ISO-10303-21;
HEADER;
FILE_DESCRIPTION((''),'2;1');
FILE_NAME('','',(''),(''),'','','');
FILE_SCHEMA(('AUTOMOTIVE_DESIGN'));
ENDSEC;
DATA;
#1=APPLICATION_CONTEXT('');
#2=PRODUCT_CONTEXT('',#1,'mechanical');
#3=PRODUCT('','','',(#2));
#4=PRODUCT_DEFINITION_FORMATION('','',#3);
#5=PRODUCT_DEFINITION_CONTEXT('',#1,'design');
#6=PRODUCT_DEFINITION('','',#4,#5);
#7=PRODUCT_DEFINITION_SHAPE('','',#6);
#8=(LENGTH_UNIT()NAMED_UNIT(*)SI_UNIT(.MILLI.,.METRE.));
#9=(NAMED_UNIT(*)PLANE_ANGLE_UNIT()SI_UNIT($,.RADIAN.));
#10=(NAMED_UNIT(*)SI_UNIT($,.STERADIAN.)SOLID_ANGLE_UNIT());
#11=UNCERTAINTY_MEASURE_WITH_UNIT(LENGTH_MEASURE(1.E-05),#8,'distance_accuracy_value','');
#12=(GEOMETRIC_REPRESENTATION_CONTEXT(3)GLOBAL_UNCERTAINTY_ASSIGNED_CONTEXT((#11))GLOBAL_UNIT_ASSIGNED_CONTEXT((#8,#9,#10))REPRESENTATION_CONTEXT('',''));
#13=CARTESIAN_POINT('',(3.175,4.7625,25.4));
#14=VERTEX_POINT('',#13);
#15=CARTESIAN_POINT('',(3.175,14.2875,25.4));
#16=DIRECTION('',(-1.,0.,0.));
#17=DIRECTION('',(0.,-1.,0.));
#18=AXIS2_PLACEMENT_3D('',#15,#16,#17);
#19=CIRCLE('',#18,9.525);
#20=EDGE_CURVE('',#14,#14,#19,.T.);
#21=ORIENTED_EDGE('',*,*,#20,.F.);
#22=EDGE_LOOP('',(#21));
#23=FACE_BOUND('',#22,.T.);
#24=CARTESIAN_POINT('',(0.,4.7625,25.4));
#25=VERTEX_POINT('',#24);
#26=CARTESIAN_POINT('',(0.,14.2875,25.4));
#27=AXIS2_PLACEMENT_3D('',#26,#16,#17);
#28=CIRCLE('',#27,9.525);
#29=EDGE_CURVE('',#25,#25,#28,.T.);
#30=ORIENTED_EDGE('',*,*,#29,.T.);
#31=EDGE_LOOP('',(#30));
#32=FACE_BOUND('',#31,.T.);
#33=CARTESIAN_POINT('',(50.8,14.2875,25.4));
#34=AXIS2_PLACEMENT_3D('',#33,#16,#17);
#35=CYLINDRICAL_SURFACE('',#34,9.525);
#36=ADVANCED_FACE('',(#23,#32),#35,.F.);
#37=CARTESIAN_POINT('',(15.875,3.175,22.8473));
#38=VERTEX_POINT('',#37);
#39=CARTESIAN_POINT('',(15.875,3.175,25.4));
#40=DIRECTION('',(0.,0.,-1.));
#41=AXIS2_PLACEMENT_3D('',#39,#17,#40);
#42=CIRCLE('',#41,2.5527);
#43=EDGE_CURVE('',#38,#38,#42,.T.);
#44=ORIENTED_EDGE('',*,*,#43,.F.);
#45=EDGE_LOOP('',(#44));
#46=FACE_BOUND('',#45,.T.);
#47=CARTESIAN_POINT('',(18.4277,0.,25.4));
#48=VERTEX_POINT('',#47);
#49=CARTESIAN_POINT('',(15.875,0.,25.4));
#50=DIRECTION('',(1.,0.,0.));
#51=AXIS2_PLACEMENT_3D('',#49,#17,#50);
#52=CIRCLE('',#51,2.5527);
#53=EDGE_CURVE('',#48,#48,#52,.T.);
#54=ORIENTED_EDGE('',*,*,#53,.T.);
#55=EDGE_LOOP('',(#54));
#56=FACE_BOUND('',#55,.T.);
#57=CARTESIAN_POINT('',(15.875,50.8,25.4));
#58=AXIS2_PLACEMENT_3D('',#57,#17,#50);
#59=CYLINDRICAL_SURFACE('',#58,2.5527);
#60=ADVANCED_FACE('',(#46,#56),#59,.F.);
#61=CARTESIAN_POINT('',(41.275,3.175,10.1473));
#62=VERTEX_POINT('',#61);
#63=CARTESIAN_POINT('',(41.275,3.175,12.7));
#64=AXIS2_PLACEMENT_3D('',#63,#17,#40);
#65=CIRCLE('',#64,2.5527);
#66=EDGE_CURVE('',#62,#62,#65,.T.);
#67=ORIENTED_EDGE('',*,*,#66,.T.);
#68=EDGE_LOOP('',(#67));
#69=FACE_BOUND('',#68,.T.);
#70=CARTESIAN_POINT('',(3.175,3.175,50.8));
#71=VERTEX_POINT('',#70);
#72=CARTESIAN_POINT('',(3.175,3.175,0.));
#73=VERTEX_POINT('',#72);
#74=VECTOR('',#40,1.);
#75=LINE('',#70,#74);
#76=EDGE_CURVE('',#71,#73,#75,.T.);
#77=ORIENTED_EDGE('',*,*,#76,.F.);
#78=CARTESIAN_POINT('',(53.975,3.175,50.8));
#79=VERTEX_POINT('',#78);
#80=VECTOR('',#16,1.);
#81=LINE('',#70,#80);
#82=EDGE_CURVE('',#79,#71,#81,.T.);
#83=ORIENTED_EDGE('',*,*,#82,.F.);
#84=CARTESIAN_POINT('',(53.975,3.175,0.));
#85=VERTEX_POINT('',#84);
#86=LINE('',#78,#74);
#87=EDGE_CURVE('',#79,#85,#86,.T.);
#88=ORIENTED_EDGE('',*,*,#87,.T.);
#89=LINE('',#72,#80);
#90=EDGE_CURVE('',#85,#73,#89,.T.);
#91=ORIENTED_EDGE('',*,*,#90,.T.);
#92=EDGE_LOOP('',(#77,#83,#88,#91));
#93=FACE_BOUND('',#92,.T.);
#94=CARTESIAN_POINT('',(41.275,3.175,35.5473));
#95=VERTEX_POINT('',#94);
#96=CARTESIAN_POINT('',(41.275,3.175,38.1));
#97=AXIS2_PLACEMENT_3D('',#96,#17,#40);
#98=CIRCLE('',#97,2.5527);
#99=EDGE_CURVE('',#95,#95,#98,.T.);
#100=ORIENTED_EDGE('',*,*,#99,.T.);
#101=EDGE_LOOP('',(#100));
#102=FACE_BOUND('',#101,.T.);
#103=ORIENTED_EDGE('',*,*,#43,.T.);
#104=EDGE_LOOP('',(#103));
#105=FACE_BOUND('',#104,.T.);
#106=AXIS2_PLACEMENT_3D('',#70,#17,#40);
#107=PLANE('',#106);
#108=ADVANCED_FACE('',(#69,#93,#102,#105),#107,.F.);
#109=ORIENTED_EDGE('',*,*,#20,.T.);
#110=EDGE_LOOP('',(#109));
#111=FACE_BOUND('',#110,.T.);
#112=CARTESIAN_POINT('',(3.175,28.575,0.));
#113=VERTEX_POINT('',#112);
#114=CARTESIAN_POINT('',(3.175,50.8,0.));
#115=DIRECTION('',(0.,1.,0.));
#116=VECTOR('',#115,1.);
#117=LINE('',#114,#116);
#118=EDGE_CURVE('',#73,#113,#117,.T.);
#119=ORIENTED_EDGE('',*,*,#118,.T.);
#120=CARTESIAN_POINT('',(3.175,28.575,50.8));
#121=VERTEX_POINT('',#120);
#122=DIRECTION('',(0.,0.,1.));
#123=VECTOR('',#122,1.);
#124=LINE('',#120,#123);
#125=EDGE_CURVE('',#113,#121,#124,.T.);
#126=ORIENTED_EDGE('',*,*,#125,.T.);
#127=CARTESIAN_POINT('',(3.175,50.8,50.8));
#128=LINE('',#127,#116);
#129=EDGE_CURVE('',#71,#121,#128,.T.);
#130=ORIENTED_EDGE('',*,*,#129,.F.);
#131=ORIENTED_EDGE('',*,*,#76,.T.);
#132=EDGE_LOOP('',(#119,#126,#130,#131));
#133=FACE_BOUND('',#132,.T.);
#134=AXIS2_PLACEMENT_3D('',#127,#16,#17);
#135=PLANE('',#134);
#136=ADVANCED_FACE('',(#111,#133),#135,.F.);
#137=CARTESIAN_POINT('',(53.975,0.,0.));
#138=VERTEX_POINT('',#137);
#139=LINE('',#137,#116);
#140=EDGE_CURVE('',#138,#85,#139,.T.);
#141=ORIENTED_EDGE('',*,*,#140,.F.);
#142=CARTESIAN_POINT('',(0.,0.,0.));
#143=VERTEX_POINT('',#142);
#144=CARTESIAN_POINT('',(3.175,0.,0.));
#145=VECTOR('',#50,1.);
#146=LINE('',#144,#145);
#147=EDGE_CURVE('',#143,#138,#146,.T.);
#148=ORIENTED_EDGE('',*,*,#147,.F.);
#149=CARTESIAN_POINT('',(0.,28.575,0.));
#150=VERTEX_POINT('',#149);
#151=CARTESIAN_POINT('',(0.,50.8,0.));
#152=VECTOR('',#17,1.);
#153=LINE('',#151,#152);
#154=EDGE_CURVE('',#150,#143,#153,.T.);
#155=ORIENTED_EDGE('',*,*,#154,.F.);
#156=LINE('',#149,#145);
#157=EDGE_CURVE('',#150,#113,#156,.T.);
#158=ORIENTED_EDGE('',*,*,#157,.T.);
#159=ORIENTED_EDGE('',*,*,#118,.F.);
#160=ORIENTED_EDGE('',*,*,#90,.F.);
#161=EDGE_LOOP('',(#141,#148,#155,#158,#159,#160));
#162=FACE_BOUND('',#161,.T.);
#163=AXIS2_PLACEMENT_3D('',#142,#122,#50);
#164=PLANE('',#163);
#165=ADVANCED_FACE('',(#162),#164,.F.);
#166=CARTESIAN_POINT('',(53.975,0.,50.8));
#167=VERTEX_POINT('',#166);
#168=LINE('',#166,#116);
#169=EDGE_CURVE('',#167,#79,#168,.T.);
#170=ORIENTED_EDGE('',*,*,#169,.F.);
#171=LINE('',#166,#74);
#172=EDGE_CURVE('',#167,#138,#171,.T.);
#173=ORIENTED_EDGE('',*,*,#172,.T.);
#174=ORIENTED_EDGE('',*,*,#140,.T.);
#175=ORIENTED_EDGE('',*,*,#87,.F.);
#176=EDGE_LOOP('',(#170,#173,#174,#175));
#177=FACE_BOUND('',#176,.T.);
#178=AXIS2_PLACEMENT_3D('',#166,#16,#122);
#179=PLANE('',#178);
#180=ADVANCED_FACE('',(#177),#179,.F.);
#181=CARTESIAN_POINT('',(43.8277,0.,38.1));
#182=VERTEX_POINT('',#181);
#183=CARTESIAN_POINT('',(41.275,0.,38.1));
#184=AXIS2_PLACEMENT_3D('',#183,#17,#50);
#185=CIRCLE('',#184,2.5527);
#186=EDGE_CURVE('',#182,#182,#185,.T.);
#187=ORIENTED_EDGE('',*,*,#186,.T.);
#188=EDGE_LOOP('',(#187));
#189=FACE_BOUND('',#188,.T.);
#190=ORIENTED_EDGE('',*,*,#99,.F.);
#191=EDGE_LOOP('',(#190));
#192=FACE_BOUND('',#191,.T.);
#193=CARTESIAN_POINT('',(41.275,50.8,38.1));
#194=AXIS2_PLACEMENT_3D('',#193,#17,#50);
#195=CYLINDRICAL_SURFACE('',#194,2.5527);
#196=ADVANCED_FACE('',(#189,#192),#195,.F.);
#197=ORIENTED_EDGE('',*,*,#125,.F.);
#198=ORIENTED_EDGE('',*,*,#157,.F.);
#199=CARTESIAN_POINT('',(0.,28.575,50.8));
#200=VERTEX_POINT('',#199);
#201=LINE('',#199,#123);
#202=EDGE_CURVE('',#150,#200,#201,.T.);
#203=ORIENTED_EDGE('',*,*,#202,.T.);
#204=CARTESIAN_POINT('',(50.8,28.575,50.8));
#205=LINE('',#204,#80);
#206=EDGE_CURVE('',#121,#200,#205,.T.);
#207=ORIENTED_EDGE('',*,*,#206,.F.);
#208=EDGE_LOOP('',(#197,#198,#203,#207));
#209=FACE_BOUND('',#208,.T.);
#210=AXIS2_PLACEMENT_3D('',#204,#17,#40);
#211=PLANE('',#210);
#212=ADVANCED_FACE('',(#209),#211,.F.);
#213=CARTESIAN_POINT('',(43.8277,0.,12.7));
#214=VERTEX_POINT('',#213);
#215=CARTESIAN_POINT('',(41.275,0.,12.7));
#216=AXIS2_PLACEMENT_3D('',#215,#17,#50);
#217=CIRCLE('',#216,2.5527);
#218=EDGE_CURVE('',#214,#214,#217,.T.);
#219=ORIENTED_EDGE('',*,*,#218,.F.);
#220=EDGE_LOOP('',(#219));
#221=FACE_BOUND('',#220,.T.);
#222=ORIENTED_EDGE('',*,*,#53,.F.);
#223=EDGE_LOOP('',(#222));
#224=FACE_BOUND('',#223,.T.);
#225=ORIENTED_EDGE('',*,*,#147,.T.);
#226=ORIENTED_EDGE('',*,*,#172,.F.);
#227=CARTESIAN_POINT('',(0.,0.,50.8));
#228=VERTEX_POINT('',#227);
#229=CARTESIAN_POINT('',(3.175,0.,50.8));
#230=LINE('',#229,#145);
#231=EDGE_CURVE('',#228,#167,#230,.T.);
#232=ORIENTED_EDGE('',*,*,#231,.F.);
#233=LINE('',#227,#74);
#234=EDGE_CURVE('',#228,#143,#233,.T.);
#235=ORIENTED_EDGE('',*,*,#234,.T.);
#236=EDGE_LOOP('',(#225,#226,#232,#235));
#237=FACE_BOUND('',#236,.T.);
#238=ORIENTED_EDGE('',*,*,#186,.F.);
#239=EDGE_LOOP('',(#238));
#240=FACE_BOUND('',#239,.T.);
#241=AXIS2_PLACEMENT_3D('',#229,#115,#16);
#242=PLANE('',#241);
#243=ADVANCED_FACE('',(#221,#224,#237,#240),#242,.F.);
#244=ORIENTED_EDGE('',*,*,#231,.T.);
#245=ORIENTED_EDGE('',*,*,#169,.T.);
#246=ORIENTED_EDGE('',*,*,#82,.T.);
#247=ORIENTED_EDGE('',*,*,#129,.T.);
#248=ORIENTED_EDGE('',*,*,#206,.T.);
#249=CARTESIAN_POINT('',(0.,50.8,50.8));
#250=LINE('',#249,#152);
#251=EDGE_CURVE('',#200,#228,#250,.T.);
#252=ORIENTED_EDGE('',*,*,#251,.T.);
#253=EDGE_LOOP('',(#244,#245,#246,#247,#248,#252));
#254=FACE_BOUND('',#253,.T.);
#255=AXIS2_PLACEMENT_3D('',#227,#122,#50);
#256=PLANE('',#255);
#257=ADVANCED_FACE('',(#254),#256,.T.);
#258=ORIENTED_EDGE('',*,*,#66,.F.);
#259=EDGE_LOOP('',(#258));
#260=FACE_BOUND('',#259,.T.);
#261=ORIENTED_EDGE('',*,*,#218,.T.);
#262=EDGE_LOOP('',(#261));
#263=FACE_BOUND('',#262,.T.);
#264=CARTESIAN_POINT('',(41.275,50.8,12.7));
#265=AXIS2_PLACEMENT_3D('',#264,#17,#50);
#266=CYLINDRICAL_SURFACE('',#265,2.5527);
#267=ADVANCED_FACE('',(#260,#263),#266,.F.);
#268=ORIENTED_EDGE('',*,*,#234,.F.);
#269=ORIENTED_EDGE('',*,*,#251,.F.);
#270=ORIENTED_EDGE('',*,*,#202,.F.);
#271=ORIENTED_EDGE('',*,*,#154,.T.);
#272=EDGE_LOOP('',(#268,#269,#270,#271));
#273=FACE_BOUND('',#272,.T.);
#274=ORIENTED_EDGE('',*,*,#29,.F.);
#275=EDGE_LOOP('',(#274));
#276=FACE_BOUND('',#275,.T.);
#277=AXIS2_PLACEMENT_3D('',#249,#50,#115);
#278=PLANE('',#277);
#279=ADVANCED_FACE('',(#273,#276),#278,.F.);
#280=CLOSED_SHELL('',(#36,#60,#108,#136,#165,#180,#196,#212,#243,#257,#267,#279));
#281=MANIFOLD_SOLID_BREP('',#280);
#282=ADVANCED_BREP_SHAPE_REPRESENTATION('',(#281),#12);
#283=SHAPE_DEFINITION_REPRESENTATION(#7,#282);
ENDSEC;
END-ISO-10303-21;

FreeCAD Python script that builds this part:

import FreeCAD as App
import Part
import Sketcher

V = App.Vector
Q = App.Units.Quantity

doc = App.newDocument("Part")
body = doc.addObject("PartDesign::Body", "Body")

sketch1 = doc.addObject("Sketcher::SketchObject", "Sketch")
body.addObject(sketch1)
sketch1.AttachmentSupport = (doc.XY_Plane, [""])
sketch1.MapMode = "FlatFace"
sketch1.addGeometry([
    Part.LineSegment(V(3.2, 50.8, 0), V(0, 50.8, 0)),
    Part.LineSegment(V(0, 50.8, 0), V(0, 0, 0)),
    Part.LineSegment(V(0, 0, 0), V(54, 0, 0)),
    Part.LineSegment(V(54, 0, 0), V(54, 3.2, 0)),
    Part.LineSegment(V(54, 3.2, 0), V(3.2, 3.2, 0)),
    Part.LineSegment(V(3.2, 3.2, 0), V(3.2, 50.8, 0)),
], False)
sketch1.addConstraint([
    Sketcher.Constraint("Coincident", 0, 2, 1, 1),
    Sketcher.Constraint("Coincident", 1, 2, 2, 1),
    Sketcher.Constraint("Coincident", 2, 2, 3, 1),
    Sketcher.Constraint("Coincident", 3, 2, 4, 1),
    Sketcher.Constraint("Coincident", 4, 2, 5, 1),
    Sketcher.Constraint("Coincident", 5, 2, 0, 1),
    Sketcher.Constraint("Horizontal", 0),
    Sketcher.Constraint("Vertical", 1),
    Sketcher.Constraint("Horizontal", 2),
    Sketcher.Constraint("Vertical", 3),
    Sketcher.Constraint("Horizontal", 4),
    Sketcher.Constraint("Vertical", 5),
    Sketcher.Constraint("Coincident", 1, 2, -1, 1),
    Sketcher.Constraint("Equal", 4, 1),
    Sketcher.Constraint("Equal", 0, 3),
    Sketcher.Constraint("DistanceX", 4, 2, 4, 1, Q("2 in")),
    Sketcher.Constraint("DistanceX", 0, 2, 0, 1, Q("0.125 in")),
])
pad1 = doc.addObject("PartDesign::Pad", "Pad")
body.addObject(pad1)
pad1.Profile = sketch1
pad1.Length = Q("2 in")

sketch2 = doc.addObject("Sketcher::SketchObject", "Sketch001")
body.addObject(sketch2)
sketch2.AttachmentSupport = (doc.YZ_Plane, [""])
sketch2.MapMode = "FlatFace"
sketch2.addGeometry([
    Part.Circle(V(14, 25, 0), V(0, 0, 1), 10),
    Part.LineSegment(V(51, 0, 0), V(29, 0, 0)),
    Part.LineSegment(V(29, 0, 0), V(29, 51, 0)),
    Part.LineSegment(V(29, 51, 0), V(51, 51, 0)),
    Part.LineSegment(V(51, 51, 0), V(51, 0, 0)),
], False)
sketch2.addConstraint([
    Sketcher.Constraint("Coincident", 1, 2, 2, 1),
    Sketcher.Constraint("Coincident", 2, 2, 3, 1),
    Sketcher.Constraint("Coincident", 3, 2, 4, 1),
    Sketcher.Constraint("Coincident", 4, 2, 1, 1),
    Sketcher.Constraint("Horizontal", 1),
    Sketcher.Constraint("Vertical", 2),
    Sketcher.Constraint("Horizontal", 3),
    Sketcher.Constraint("Vertical", 4),
    Sketcher.Constraint("PointOnObject", 1, 2, -1),
    Sketcher.Constraint("Diameter", 0, Q("0.75 in")),
    Sketcher.Constraint("DistanceY", 2, 1, 2, 2, Q("2 in")),
    Sketcher.Constraint("DistanceY", -1, 1, 0, 3, Q("1 in")),
    Sketcher.Constraint("DistanceX", -1, 1, 3, 2, Q("2 in")),
    Sketcher.Constraint("DistanceX", 1, 2, 1, 1, Q("0.875 in")),
    Sketcher.Constraint("DistanceX", -1, 1, 0, 3, Q("0.5625 in")),
])
pocket1 = doc.addObject("PartDesign::Pocket", "Pocket")
body.addObject(pocket1)
pocket1.Profile = sketch2
pocket1.Length = Q("2 in")
pocket1.Reversed = True

sketch3 = doc.addObject("Sketcher::SketchObject", "Sketch002")
body.addObject(sketch3)
sketch3.AttachmentSupport = (doc.XZ_Plane, [""])
sketch3.MapMode = "FlatFace"
sketch3.addGeometry([
    Part.Circle(V(15.9, 25.4, 0), V(0, 0, 1), 2.6),
    Part.Circle(V(41.3, 38.1, 0), V(0, 0, 1), 2.6),
    Part.Circle(V(41.3, 12.7, 0), V(0, 0, 1), 2.6),
], False)
sketch3.addConstraint([
    Sketcher.Constraint("Equal", 0, 1),
    Sketcher.Constraint("Equal", 1, 2),
    Sketcher.Constraint("Vertical", 1, 3, 2, 3),
    Sketcher.Constraint("Diameter", 0, Q("0.201 in")),
    Sketcher.Constraint("DistanceY", -1, 1, 0, 3, Q("1 in")),
    Sketcher.Constraint("DistanceX", 0, 3, 1, 3, Q("1 in")),
    Sketcher.Constraint("DistanceY", 2, 3, 1, 3, Q("1 in")),
    Sketcher.Constraint("DistanceY", -1, 1, 1, 3, Q("1.5 in")),
    Sketcher.Constraint("DistanceX", -1, 1, 0, 3, Q("0.625 in")),
])
pocket2 = doc.addObject("PartDesign::Pocket", "Pocket001")
body.addObject(pocket2)
pocket2.Profile = sketch3
pocket2.Length = Q("2 in")

doc.recompute()
